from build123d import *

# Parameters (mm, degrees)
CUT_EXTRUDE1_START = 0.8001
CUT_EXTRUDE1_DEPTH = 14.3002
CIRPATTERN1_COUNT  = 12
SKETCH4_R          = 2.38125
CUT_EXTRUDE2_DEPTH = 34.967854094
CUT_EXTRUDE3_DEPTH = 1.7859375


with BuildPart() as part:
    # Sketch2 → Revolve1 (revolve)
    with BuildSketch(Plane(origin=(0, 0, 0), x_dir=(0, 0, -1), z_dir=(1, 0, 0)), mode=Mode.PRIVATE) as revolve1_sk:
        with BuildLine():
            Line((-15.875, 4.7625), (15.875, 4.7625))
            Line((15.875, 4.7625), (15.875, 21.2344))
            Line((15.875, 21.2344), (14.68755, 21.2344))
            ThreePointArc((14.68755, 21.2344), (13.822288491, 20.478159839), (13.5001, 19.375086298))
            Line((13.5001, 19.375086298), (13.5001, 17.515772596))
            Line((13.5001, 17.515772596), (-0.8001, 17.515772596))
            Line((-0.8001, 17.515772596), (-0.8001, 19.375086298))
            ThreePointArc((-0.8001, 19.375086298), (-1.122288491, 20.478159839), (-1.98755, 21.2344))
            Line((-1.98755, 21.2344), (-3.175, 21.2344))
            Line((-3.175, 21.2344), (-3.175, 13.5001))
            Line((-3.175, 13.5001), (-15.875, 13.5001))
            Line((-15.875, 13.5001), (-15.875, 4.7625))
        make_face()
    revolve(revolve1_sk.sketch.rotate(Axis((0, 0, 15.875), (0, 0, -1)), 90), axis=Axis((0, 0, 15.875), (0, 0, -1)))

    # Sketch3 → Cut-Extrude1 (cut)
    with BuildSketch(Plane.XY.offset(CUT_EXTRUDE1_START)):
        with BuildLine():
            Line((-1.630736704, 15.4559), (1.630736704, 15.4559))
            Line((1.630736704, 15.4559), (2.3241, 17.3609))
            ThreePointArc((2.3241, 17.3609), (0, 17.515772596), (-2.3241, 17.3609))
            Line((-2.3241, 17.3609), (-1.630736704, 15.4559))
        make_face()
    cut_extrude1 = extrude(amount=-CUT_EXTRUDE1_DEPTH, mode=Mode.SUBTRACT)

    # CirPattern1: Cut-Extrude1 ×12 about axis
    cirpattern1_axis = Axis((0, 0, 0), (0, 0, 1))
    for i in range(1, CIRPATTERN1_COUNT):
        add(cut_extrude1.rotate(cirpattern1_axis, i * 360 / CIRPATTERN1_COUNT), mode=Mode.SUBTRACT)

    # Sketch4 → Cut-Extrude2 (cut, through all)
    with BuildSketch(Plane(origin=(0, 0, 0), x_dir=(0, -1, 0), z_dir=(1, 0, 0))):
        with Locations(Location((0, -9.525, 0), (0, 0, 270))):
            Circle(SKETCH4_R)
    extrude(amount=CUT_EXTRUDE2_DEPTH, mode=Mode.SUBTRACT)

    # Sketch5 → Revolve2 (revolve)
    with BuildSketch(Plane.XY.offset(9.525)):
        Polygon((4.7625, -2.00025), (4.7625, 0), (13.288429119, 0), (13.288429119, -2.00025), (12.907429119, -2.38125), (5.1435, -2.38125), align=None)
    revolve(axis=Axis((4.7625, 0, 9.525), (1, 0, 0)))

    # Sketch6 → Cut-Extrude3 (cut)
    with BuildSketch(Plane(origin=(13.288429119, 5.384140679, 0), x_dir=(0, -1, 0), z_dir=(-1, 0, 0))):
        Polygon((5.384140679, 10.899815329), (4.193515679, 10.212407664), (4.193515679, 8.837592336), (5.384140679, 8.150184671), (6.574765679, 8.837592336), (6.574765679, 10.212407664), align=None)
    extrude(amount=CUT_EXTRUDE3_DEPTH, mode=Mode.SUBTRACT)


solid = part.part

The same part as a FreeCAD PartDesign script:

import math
import FreeCAD as App
import Part
import Sketcher
Q = App.Units.Quantity


def add_polygon(sketch, points):
    """Adds a closed chain of lines whose ends are joined by coincident constraints."""
    first, n = sketch.GeometryCount, len(points)
    for a, b in zip(points, points[1:] + points[:1]):
        sketch.addGeometry(Part.LineSegment(App.Vector(*a, 0), App.Vector(*b, 0)), False)
    for i in range(n):
        sketch.addConstraint(Sketcher.Constraint("Coincident", first + i, 2, first + (i + 1) % n, 1))

doc = App.newDocument("Part")
body = doc.addObject("PartDesign::Body", "Body")

# Sketch on YZ plane
sketch1 = body.newObject("Sketcher::SketchObject", "Sketch")
sketch1.AttachmentSupport = (doc.getObject("YZ_Plane"), [""])
sketch1.MapMode = "FlatFace"
sketch1.addGeometry([
    Part.LineSegment(App.Vector(4.8, 15.9, 0), App.Vector(4.8, -15.9, 0)),  # 0
    Part.LineSegment(App.Vector(4.8, -15.9, 0), App.Vector(21.2, -15.9, 0)),  # 1
    Part.LineSegment(App.Vector(21.2, -15.9, 0), App.Vector(21.2, -14.7, 0)),  # 2
    Part.ArcOfCircle(Part.Circle(App.Vector(19.4, -15.5, 0), App.Vector(0, 0, 1), 2), math.radians(25), math.radians(90)),  # 3
    Part.LineSegment(App.Vector(19.4, -13.5, 0), App.Vector(17.5, -13.5, 0)),  # 4
    Part.LineSegment(App.Vector(17.5, -13.5, 0), App.Vector(17.5, 0.8, 0)),  # 5
    Part.LineSegment(App.Vector(17.5, 0.8, 0), App.Vector(19.4, 0.8, 0)),  # 6
    Part.ArcOfCircle(Part.Circle(App.Vector(19.4, 2.8, 0), App.Vector(0, 0, 1), 2), math.radians(-90), math.radians(-25)),  # 7
    Part.LineSegment(App.Vector(21.2, 2, 0), App.Vector(21.2, 3.2, 0)),  # 8
    Part.LineSegment(App.Vector(21.2, 3.2, 0), App.Vector(13.5, 3.2, 0)),  # 9
    Part.LineSegment(App.Vector(13.5, 3.2, 0), App.Vector(13.5, 15.9, 0)),  # 10
    Part.LineSegment(App.Vector(13.5, 15.9, 0), App.Vector(4.8, 15.9, 0)),  # 11
], False)
sketch1.addConstraint([
    Sketcher.Constraint("Coincident", 0, 2, 1, 1),
    Sketcher.Constraint("Coincident", 1, 2, 2, 1),
    Sketcher.Constraint("Coincident", 2, 2, 3, 1),
    Sketcher.Constraint("Tangent", 3, 2, 4, 1),
    Sketcher.Constraint("Coincident", 4, 2, 5, 1),
    Sketcher.Constraint("Coincident", 5, 2, 6, 1),
    Sketcher.Constraint("Tangent", 6, 2, 7, 1),
    Sketcher.Constraint("Coincident", 7, 2, 8, 1),
    Sketcher.Constraint("Coincident", 8, 2, 9, 1),
    Sketcher.Constraint("Coincident", 9, 2, 10, 1),
    Sketcher.Constraint("Coincident", 10, 2, 11, 1),
    Sketcher.Constraint("Coincident", 11, 2, 0, 1),
    Sketcher.Constraint("Vertical", 0),
    Sketcher.Constraint("Horizontal", 1),
    Sketcher.Constraint("Vertical", 2),
    Sketcher.Constraint("Horizontal", 4),
    Sketcher.Constraint("Vertical", 5),
    Sketcher.Constraint("Horizontal", 6),
    Sketcher.Constraint("Vertical", 8),
    Sketcher.Constraint("Horizontal", 9),
    Sketcher.Constraint("Vertical", 10),
    Sketcher.Constraint("Horizontal", 11),
    Sketcher.Constraint("Equal", 3, 7),
    Sketcher.Constraint("Vertical", 3, 3, 7, 3),
    Sketcher.Constraint("Vertical", 2, 2, 7, 2),
    Sketcher.Constraint("Equal", 2, 8),
    Sketcher.Constraint("DistanceY", 10, 1, 10, 2, Q("0.5 in")),
    Sketcher.Constraint("DistanceY", 0, 2, 0, 1, Q("1.25 in")),
    Sketcher.Constraint("DistanceX", 11, 2, 11, 1, Q("0.344 in")),
    Sketcher.Constraint("DistanceY", 5, 1, 5, 2, Q("0.563 in")),
    Sketcher.Constraint("DistanceX", 1, 1, 1, 2, Q("0.6485 in")),
    Sketcher.Constraint("DistanceX", -1, 1, 0, 2, Q("0.1875 in")),
    Sketcher.Constraint("DistanceY", 0, 2, -1, 1, Q("0.625 in")),
    Sketcher.Constraint("Radius", 3, Q("2.049385 mm")),
    Sketcher.Constraint("DistanceY", 2, 1, 2, 2, Q("1.18745 mm")),
    Sketcher.Constraint("DistanceX", 4, 2, 4, 1, Q("1.859314 mm")),
])
revolution = body.newObject("PartDesign::Revolution", "Revolution")
revolution.Profile = sketch1
revolution.ReferenceAxis = (sketch1, ["V_Axis"])
revolution.Angle = 360

# Sketch on XY plane
sketch2 = body.newObject("Sketcher::SketchObject", "Sketch001")
sketch2.AttachmentSupport = (doc.getObject("XY_Plane"), [""])
sketch2.MapMode = "FlatFace"
sketch2.AttachmentOffset = App.Placement(App.Vector(0, 0, 0.0315 * 25.4), App.Rotation())
sketch2.addGeometry([
    Part.LineSegment(App.Vector(-1.6, 15.5, 0), App.Vector(1.6, 15.5, 0)),
    Part.LineSegment(App.Vector(1.6, 15.5, 0), App.Vector(2.3, 17.4, 0)),
    Part.ArcOfCircle(Part.Circle(App.Vector(0, 0, 0), App.Vector(0, 0, 1), 17.5), math.radians(82.38), math.radians(97.62)),
    Part.LineSegment(App.Vector(-2.3, 17.4, 0), App.Vector(-1.6, 15.5, 0)),
], False)
sketch2.addConstraint([
    Sketcher.Constraint("Coincident", 0, 2, 1, 1),
    Sketcher.Constraint("Coincident", 1, 2, 2, 1),
    Sketcher.Constraint("Coincident", 2, 2, 3, 1),
    Sketcher.Constraint("Coincident", 3, 2, 0, 1),
    Sketcher.Constraint("Horizontal", 0),
    Sketcher.Constraint("Coincident", 2, 3, -1, 1),
    Sketcher.Constraint("Horizontal", 1, 2, 2, 2),
    Sketcher.Constraint("Equal", 1, 3),
    Sketcher.Constraint("Angle", 1, Q("70 deg")),
    Sketcher.Constraint("DistanceY", 0, 2, 1, 2, Q("0.075 in")),
    Sketcher.Constraint("DistanceX", 2, 2, 1, 2, Q("0.183 in")),
    Sketcher.Constraint("DistanceY", -1, 1, 0, 2, Q("0.6085 in")),
])
pocket1 = body.newObject("PartDesign::Pocket", "Pocket")
pocket1.Profile = sketch2
pocket1.Length = Q("0.563 in")
doc.recompute()

polarpattern = body.newObject("PartDesign::PolarPattern", "PolarPattern")
polarpattern.Originals = [pocket1]
polarpattern.Axis = (doc.getObject("Z_Axis"), [""])
polarpattern.Angle = 360
polarpattern.Occurrences = 12
body.Tip = polarpattern

# Sketch on YZ plane
sketch3 = body.newObject("Sketcher::SketchObject", "Sketch002")
sketch3.AttachmentSupport = (doc.getObject("YZ_Plane"), [""])
sketch3.MapMode = "FlatFace"
sketch3.addGeometry(Part.Circle(App.Vector(0, 9.5, 0), App.Vector(0, 0, 1), 2.4), False)
sketch3.addConstraint([
    Sketcher.Constraint("PointOnObject", 0, 3, -2),
    Sketcher.Constraint("Diameter", 0, Q("0.1875 in")),
    Sketcher.Constraint("DistanceY", -1, 1, 0, 3, Q("0.375 in")),
])
pocket2 = body.newObject("PartDesign::Pocket", "Pocket001")
pocket2.Profile = sketch3
pocket2.Type = "ThroughAll"
pocket2.Reversed = True

# Sketch on XY plane
sketch4 = body.newObject("Sketcher::SketchObject", "Sketch003")
sketch4.AttachmentSupport = (doc.getObject("XY_Plane"), [""])
sketch4.MapMode = "FlatFace"
sketch4.AttachmentOffset = App.Placement(App.Vector(0, 0, 0.375 * 25.4), App.Rotation())
add_polygon(sketch4, [(4.8, 0), (4.8, -2), (5.1, -2.4), (12.9, -2.4), (13.3, -2), (13.3, 0)])  # lines 0-5
sketch4.addConstraint([
    Sketcher.Constraint("Vertical", 0),
    Sketcher.Constraint("Horizontal", 2),
    Sketcher.Constraint("Vertical", 4),
    Sketcher.Constraint("Horizontal", 5),
    Sketcher.Constraint("PointOnObject", 4, 2, -1),
    Sketcher.Constraint("Perpendicular", 1, 3),
    Sketcher.Constraint("Horizontal", 0, 2, 3, 2),
    Sketcher.Constraint("Equal", 1, 3),
    Sketcher.Constraint("DistanceX", -1, 1, 0, 2, Q("0.1875 in")),
    Sketcher.Constraint("DistanceY", 1, 2, -1, 1, Q("0.09375 in")),
    Sketcher.Constraint("DistanceX", 0, 2, 1, 2, Q("0.015 in")),
    Sketcher.Constraint("DistanceX", 2, 1, 2, 2, Q("7.763929 mm")),
])
revolution2 = body.newObject("PartDesign::Revolution", "Revolution001")
revolution2.Profile = sketch4
revolution2.ReferenceAxis = (sketch4, ["H_Axis"])
revolution2.Angle = 360

# Sketch on YZ plane
sketch5 = body.newObject("Sketcher::SketchObject", "Sketch004")
sketch5.AttachmentSupport = (doc.getObject("YZ_Plane"), [""])
sketch5.MapMode = "FlatFace"
sketch5.AttachmentOffset = App.Placement(App.Vector(0, 0, 13.288429), App.Rotation())
add_polygon(sketch5, [(0, 10.9), (1.2, 10.2), (1.2, 8.8), (0, 8.2), (-1.2, 8.8), (-1.2, 10.2)])  # lines 0-5
sketch5.addConstraint([
    Sketcher.Constraint("Vertical", 1),
    Sketcher.Constraint("Vertical", 4),
    Sketcher.Constraint("Symmetric", 1, 2, 3, 2, -2),
    Sketcher.Constraint("PointOnObject", 2, 2, -2),
    Sketcher.Constraint("PointOnObject", 5, 2, -2),
    Sketcher.Constraint("Parallel", 0, 3),
    Sketcher.Constraint("Parallel", 2, 5),
    Sketcher.Constraint("Angle", 0, Q("-30 deg")),
    Sketcher.Constraint("DistanceX", -1, 1, 0, 2, Q("0.046875 in")),
    Sketcher.Constraint("DistanceY", 1, 2, 1, 1, Q("1.374815 mm")),
    Sketcher.Constraint("DistanceY", -1, 1, 0, 2, Q("10.212408 mm")),
])
pocket3 = body.newObject("PartDesign::Pocket", "Pocket002")
pocket3.Profile = sketch5
pocket3.Length = 1.785937

doc.recompute()
